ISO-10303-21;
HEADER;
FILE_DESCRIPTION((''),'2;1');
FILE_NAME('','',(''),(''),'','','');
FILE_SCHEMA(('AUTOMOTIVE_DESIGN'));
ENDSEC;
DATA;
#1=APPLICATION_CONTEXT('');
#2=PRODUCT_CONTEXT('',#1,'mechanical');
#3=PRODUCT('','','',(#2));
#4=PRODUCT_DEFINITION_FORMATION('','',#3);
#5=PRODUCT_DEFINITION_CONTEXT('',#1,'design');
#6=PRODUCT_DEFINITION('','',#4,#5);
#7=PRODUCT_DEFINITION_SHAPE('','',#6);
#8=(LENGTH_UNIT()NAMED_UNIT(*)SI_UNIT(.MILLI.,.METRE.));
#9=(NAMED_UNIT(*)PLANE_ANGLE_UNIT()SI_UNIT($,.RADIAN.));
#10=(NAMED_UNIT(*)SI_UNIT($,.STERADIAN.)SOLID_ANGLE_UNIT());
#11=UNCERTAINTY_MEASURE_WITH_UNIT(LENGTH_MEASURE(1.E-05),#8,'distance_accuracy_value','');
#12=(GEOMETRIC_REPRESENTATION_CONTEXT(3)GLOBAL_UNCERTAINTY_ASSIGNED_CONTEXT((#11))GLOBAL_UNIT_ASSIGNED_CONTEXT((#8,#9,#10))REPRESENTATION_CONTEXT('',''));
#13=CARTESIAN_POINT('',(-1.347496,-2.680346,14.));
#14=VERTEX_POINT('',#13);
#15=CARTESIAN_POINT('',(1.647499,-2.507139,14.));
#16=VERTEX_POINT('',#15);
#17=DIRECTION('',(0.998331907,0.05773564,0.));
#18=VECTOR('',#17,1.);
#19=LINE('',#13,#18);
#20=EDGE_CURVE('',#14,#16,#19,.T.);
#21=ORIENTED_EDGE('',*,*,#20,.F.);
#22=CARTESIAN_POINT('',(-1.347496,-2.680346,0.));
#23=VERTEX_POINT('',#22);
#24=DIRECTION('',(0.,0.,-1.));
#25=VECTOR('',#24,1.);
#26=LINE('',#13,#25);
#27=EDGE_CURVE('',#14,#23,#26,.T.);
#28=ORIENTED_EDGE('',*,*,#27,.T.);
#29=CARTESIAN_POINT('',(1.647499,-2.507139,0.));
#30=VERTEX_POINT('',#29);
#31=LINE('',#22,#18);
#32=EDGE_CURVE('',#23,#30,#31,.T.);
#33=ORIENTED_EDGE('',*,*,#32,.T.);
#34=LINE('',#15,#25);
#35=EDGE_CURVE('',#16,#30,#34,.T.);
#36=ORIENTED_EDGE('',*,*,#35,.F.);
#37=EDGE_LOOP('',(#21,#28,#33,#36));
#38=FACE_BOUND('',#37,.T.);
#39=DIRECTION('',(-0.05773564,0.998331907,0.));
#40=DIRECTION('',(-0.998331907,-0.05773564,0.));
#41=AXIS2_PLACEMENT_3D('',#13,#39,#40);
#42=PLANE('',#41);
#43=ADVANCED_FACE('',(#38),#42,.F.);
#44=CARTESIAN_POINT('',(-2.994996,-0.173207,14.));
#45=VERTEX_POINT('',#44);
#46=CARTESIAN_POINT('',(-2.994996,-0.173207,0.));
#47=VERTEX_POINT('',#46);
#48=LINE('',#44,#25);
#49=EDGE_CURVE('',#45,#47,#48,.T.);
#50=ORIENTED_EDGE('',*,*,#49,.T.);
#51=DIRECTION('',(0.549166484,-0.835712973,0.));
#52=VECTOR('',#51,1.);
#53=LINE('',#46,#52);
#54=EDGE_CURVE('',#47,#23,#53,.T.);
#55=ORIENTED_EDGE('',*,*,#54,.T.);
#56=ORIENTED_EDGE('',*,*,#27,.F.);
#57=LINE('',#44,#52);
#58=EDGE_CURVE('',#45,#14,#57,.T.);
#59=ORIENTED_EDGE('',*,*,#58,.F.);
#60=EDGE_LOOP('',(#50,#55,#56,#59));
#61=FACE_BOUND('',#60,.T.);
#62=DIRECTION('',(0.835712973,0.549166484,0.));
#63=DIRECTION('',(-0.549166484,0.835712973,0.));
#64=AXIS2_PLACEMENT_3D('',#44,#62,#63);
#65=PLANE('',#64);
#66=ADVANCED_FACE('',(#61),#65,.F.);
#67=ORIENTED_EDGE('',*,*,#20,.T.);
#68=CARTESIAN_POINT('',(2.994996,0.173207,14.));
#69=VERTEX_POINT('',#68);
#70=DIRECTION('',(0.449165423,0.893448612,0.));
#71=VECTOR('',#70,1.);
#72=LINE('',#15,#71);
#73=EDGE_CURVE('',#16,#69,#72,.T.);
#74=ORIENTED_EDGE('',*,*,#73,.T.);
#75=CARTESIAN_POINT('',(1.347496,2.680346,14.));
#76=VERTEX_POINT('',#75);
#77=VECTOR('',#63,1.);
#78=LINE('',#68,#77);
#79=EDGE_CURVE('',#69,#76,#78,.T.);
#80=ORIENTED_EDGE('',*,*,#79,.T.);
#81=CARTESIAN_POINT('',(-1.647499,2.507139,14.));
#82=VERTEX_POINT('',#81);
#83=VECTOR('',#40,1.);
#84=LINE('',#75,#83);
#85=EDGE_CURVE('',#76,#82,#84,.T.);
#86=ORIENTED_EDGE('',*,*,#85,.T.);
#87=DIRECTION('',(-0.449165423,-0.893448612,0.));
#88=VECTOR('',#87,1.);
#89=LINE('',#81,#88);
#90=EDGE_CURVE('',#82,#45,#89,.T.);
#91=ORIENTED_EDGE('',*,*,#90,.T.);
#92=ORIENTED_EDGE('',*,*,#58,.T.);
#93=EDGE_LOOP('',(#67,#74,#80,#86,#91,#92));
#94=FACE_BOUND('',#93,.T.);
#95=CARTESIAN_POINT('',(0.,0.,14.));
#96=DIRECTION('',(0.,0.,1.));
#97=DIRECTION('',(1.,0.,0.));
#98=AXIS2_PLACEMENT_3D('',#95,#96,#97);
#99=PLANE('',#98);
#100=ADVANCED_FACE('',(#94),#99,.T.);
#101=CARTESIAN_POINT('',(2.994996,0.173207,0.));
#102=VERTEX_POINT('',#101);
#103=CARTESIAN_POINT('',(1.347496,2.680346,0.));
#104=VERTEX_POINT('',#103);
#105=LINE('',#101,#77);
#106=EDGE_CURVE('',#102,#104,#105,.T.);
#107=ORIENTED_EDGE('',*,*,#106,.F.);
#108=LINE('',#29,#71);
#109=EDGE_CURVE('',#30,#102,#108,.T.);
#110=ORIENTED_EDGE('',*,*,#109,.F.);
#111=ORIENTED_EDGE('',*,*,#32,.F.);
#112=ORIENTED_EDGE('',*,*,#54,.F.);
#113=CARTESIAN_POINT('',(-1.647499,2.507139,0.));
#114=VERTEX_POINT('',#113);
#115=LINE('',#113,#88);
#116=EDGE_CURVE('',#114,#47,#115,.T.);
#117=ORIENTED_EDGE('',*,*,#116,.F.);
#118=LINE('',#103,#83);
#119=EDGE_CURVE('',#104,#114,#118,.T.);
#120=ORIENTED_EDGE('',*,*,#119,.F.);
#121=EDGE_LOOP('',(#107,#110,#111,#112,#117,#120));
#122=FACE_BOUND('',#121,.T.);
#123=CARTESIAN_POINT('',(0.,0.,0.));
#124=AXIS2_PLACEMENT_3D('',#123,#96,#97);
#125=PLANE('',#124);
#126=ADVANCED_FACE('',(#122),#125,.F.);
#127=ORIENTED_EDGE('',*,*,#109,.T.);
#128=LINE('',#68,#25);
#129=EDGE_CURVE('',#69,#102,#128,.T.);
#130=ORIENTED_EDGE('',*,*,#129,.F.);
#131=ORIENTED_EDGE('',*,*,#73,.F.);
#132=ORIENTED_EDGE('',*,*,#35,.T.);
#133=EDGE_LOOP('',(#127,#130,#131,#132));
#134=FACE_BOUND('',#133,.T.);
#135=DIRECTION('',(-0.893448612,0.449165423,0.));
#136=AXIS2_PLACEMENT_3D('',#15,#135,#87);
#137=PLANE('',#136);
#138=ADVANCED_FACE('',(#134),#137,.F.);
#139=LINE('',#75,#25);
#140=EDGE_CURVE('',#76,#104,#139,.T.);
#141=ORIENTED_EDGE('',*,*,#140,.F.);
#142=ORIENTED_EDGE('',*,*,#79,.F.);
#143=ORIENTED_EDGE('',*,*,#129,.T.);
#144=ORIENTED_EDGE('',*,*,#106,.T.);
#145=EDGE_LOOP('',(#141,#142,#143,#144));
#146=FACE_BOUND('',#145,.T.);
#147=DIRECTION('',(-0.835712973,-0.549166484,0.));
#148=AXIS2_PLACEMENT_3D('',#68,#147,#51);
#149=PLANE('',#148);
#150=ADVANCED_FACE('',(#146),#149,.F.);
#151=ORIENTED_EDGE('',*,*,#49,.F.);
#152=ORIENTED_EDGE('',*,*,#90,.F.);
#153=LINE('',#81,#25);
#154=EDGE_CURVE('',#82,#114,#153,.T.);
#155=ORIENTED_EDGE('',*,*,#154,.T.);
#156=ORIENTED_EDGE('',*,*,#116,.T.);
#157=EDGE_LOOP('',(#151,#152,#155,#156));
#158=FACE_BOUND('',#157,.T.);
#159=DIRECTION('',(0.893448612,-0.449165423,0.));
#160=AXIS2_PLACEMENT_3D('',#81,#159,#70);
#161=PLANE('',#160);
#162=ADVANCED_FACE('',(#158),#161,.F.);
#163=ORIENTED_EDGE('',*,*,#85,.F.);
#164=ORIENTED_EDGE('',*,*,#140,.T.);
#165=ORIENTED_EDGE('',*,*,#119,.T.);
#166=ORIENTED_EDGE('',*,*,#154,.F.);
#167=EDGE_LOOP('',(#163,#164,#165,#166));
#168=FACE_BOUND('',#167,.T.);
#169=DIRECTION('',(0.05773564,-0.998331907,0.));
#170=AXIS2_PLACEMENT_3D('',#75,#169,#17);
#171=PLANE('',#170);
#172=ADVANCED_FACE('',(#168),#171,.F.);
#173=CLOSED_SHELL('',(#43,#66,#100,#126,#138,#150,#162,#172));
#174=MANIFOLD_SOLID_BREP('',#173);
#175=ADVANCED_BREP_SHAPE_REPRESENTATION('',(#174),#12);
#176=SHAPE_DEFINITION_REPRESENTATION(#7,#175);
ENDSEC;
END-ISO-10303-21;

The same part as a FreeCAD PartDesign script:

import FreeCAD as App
import Part
import Sketcher

V = App.Vector
Q = App.Units.Quantity

doc = App.newDocument("Part")
body = doc.addObject("PartDesign::Body", "Body")

sketch1 = doc.addObject("Sketcher::SketchObject", "Sketch")
body.addObject(sketch1)
sketch1.AttachmentSupport = (doc.XY_Plane, [""])
sketch1.MapMode = "FlatFace"
sketch1.addGeometry([
    Part.LineSegment(V(1.3, 2.7, 0), V(-1.6, 2.5, 0)),
    Part.LineSegment(V(-1.6, 2.5, 0), V(-3, -0.2, 0)),
    Part.LineSegment(V(-3, -0.2, 0), V(-1.3, -2.7, 0)),
    Part.LineSegment(V(-1.3, -2.7, 0), V(1.6, -2.5, 0)),
    Part.LineSegment(V(1.6, -2.5, 0), V(3, 0.2, 0)),
    Part.LineSegment(V(3, 0.2, 0), V(1.3, 2.7, 0)),
], False)
sketch1.addConstraint([
    Sketcher.Constraint("Coincident", 0, 2, 1, 1),
    Sketcher.Constraint("Coincident", 1, 2, 2, 1),
    Sketcher.Constraint("Coincident", 2, 2, 3, 1),
    Sketcher.Constraint("Coincident", 3, 2, 4, 1),
    Sketcher.Constraint("Coincident", 4, 2, 5, 1),
    Sketcher.Constraint("Coincident", 5, 2, 0, 1),
    Sketcher.Constraint("Symmetric", 0, 2, 3, 2, -1, 1),
    Sketcher.Constraint("Symmetric", 1, 2, 4, 2, -1, 1),
    Sketcher.Constraint("Symmetric", 2, 2, 5, 2, -1, 1),
    Sketcher.Constraint("Equal", 0, 1),
    Sketcher.Constraint("Equal", 1, 2),
    Sketcher.Constraint("Distance", 0, Q("3 mm")),
    Sketcher.Constraint("DistanceX", 0, 2, 3, 2, Q("3.294999 mm")),
    Sketcher.Constraint("DistanceX", 1, 2, 2, 2, Q("1.647499 mm")),
    Sketcher.Constraint("DistanceY", -1, 1, 0, 2, Q("2.507139 mm")),
])
pad1 = doc.addObject("PartDesign::Pad", "Pad")
body.addObject(pad1)
pad1.Profile = sketch1
pad1.Length = 14

doc.recompute()
